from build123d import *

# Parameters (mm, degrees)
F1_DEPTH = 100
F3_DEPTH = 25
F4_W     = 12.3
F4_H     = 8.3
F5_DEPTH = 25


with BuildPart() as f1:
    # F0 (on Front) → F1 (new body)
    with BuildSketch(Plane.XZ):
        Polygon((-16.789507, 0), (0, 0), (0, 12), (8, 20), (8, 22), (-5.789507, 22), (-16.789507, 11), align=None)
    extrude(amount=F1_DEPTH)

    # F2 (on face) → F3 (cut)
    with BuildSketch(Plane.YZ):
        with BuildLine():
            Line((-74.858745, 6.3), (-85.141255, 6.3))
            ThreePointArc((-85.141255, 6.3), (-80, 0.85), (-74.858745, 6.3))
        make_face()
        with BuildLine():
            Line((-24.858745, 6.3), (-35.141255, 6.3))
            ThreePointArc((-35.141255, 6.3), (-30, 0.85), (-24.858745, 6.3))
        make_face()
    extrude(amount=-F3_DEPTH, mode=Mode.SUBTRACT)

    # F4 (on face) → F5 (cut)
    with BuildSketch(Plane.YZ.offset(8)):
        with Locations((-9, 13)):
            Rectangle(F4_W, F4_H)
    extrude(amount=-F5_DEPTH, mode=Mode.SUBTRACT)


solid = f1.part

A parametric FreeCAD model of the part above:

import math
import FreeCAD as App
import Part
import Sketcher
from FreeCAD import Vector
Q = App.Units.Quantity

doc = App.newDocument("Part")
params = doc.addObject("Spreadsheet::Sheet", "Params")
for row, (alias, value) in enumerate([
    ("sketch1_height", "12 mm"),
    ("sketch1_height2", "2 mm"),
    ("sketch1_height3", "11 mm"),
    ("pad1_length", "100 mm"),
    ("sketch2_radius", "5.15 mm"),
    ("pocket1_length", "25 mm"),
    ("sketch3_width", "12.3 mm"),
    ("sketch3_height", "8.3 mm"),
    ("pocket2_length", "25 mm"),
], start=1):
    params.set(f"A{row}", alias)
    params.set(f"B{row}", "=" + value)
    params.setAlias(f"B{row}", alias)

body = doc.addObject("PartDesign::Body", "Body")

# Sketch on XZ plane
sketch1 = doc.addObject("Sketcher::SketchObject", "Sketch")
body.addObject(sketch1)
sketch1.AttachmentSupport = (doc.XZ_Plane, [""])
sketch1.MapMode = "FlatFace"
sketch1.addGeometry([
    Part.LineSegment(Vector(-16.8, 0, 0), Vector(0, 0, 0)),  # 0
    Part.LineSegment(Vector(0, 0, 0), Vector(0, 12, 0)),  # 1
    Part.LineSegment(Vector(0, 12, 0), Vector(8, 20, 0)),  # 2
    Part.LineSegment(Vector(8, 20, 0), Vector(8, 22, 0)),  # 3
    Part.LineSegment(Vector(8, 22, 0), Vector(-5.8, 22, 0)),  # 4
    Part.LineSegment(Vector(-5.8, 22, 0), Vector(-16.8, 11, 0)),  # 5
    Part.LineSegment(Vector(-16.8, 11, 0), Vector(-16.8, 0, 0)),  # 6
], False)
sketch1.addConstraint([
    Sketcher.Constraint("Coincident", 0, 2, 1, 1),
    Sketcher.Constraint("Coincident", 1, 2, 2, 1),
    Sketcher.Constraint("Coincident", 2, 2, 3, 1),
    Sketcher.Constraint("Coincident", 3, 2, 4, 1),
    Sketcher.Constraint("Coincident", 4, 2, 5, 1),
    Sketcher.Constraint("Coincident", 5, 2, 6, 1),
    Sketcher.Constraint("Coincident", 6, 2, 0, 1),
    Sketcher.Constraint("Horizontal", 0),
    Sketcher.Constraint("Vertical", 1),
    Sketcher.Constraint("Vertical", 3),
    Sketcher.Constraint("Horizontal", 4),
    Sketcher.Constraint("Vertical", 6),
    Sketcher.Constraint("Coincident", 0, 2, -1, 1),
    Sketcher.Constraint("Parallel", 2, 5),
    Sketcher.Constraint("DistanceY", 1, 1, 1, 2, 12.0),
    Sketcher.Constraint("DistanceY", 3, 1, 3, 2, 2.0),
    Sketcher.Constraint("DistanceY", 6, 2, 6, 1, 11.0),
    Sketcher.Constraint("Angle", 2, Q("45 deg")),
    Sketcher.Constraint("DistanceX", -1, 1, 2, 2, 8.0),
    Sketcher.Constraint("DistanceX", 0, 1, 0, 2, 16.789507),
])
sketch1.setExpression("Constraints[14]", "Params.sketch1_height")
sketch1.setExpression("Constraints[15]", "Params.sketch1_height2")
sketch1.setExpression("Constraints[16]", "Params.sketch1_height3")
pad1 = doc.addObject("PartDesign::Pad", "Pad")
body.addObject(pad1)
pad1.Profile = sketch1
pad1.setExpression("Length", "Params.pad1_length")

# Sketch on YZ plane
sketch2 = doc.addObject("Sketcher::SketchObject", "Sketch001")
body.addObject(sketch2)
sketch2.AttachmentSupport = (doc.YZ_Plane, [""])
sketch2.MapMode = "FlatFace"
sketch2.addGeometry([
    Part.LineSegment(Vector(-75, 6, 0), Vector(-85, 6, 0)),
    Part.ArcOfCircle(Part.Circle(Vector(-80, 6, 0), Vector(0, 0, 1), 5), math.radians(177), math.radians(363)),
    Part.LineSegment(Vector(-25, 6, 0), Vector(-35, 6, 0)),
    Part.ArcOfCircle(Part.Circle(Vector(-30, 6, 0), Vector(0, 0, 1), 5), math.radians(177), math.radians(363)),
], False)
sketch2.addConstraint([
    Sketcher.Constraint("Coincident", 0, 1, 1, 2),
    Sketcher.Constraint("Coincident", 1, 1, 0, 2),
    Sketcher.Constraint("Coincident", 2, 1, 3, 2),
    Sketcher.Constraint("Coincident", 3, 1, 2, 2),
    Sketcher.Constraint("Horizontal", 0),
    Sketcher.Constraint("Horizontal", 2),
    Sketcher.Constraint("Equal", 1, 3),
    Sketcher.Constraint("Horizontal", 1, 3, 3, 3),
    Sketcher.Constraint("Horizontal", 1, 1, 2, 1),
    Sketcher.Constraint("Radius", 1, 5.15),
    Sketcher.Constraint("DistanceX", 1, 3, -1, 1, 80.0),
    Sketcher.Constraint("DistanceY", -1, 1, 1, 3, 6.0),
    Sketcher.Constraint("DistanceX", 3, 3, -1, 1, 30.0),
    Sketcher.Constraint("DistanceY", -1, 1, 0, 1, 6.3),
])
sketch2.setExpression("Constraints[9]", "Params.sketch2_radius")
pocket1 = doc.addObject("PartDesign::Pocket", "Pocket")
body.addObject(pocket1)
pocket1.Profile = sketch2
pocket1.setExpression("Length", "Params.pocket1_length")

# Sketch on YZ plane
sketch3 = doc.addObject("Sketcher::SketchObject", "Sketch002")
body.addObject(sketch3)
sketch3.AttachmentSupport = (doc.YZ_Plane, [""])
sketch3.MapMode = "FlatFace"
sketch3.AttachmentOffset = App.Placement(Vector(0, 0, 8), App.Rotation())
sketch3.addGeometry([
    Part.LineSegment(Vector(-15, 17, 0), Vector(-15, 9, 0)),
    Part.LineSegment(Vector(-15, 9, 0), Vector(-3, 9, 0)),
    Part.LineSegment(Vector(-3, 9, 0), Vector(-3, 17, 0)),
    Part.LineSegment(Vector(-3, 17, 0), Vector(-15, 17, 0)),
], False)
sketch3.addConstraint([
    Sketcher.Constraint("Coincident", 0, 2, 1, 1),
    Sketcher.Constraint("Coincident", 1, 2, 2, 1),
    Sketcher.Constraint("Coincident", 2, 2, 3, 1),
    Sketcher.Constraint("Coincident", 3, 2, 0, 1),
    Sketcher.Constraint("Vertical", 0),
    Sketcher.Constraint("Horizontal", 1),
    Sketcher.Constraint("Vertical", 2),
    Sketcher.Constraint("Horizontal", 3),
    Sketcher.Constraint("DistanceX", 1, 1, 1, 2, 12.3),
    Sketcher.Constraint("DistanceY", 0, 2, 0, 1, 8.3),
    Sketcher.Constraint("DistanceX", 0, 2, -1, 1, 15.15),
    Sketcher.Constraint("DistanceY", -1, 1, 0, 2, 8.85),
])
sketch3.setExpression("Constraints[8]", "Params.sketch3_width")
sketch3.setExpression("Constraints[9]", "Params.sketch3_height")
pocket2 = doc.addObject("PartDesign::Pocket", "Pocket001")
body.addObject(pocket2)
pocket2.Profile = sketch3
pocket2.setExpression("Length", "Params.pocket2_length")

doc.recompute()
